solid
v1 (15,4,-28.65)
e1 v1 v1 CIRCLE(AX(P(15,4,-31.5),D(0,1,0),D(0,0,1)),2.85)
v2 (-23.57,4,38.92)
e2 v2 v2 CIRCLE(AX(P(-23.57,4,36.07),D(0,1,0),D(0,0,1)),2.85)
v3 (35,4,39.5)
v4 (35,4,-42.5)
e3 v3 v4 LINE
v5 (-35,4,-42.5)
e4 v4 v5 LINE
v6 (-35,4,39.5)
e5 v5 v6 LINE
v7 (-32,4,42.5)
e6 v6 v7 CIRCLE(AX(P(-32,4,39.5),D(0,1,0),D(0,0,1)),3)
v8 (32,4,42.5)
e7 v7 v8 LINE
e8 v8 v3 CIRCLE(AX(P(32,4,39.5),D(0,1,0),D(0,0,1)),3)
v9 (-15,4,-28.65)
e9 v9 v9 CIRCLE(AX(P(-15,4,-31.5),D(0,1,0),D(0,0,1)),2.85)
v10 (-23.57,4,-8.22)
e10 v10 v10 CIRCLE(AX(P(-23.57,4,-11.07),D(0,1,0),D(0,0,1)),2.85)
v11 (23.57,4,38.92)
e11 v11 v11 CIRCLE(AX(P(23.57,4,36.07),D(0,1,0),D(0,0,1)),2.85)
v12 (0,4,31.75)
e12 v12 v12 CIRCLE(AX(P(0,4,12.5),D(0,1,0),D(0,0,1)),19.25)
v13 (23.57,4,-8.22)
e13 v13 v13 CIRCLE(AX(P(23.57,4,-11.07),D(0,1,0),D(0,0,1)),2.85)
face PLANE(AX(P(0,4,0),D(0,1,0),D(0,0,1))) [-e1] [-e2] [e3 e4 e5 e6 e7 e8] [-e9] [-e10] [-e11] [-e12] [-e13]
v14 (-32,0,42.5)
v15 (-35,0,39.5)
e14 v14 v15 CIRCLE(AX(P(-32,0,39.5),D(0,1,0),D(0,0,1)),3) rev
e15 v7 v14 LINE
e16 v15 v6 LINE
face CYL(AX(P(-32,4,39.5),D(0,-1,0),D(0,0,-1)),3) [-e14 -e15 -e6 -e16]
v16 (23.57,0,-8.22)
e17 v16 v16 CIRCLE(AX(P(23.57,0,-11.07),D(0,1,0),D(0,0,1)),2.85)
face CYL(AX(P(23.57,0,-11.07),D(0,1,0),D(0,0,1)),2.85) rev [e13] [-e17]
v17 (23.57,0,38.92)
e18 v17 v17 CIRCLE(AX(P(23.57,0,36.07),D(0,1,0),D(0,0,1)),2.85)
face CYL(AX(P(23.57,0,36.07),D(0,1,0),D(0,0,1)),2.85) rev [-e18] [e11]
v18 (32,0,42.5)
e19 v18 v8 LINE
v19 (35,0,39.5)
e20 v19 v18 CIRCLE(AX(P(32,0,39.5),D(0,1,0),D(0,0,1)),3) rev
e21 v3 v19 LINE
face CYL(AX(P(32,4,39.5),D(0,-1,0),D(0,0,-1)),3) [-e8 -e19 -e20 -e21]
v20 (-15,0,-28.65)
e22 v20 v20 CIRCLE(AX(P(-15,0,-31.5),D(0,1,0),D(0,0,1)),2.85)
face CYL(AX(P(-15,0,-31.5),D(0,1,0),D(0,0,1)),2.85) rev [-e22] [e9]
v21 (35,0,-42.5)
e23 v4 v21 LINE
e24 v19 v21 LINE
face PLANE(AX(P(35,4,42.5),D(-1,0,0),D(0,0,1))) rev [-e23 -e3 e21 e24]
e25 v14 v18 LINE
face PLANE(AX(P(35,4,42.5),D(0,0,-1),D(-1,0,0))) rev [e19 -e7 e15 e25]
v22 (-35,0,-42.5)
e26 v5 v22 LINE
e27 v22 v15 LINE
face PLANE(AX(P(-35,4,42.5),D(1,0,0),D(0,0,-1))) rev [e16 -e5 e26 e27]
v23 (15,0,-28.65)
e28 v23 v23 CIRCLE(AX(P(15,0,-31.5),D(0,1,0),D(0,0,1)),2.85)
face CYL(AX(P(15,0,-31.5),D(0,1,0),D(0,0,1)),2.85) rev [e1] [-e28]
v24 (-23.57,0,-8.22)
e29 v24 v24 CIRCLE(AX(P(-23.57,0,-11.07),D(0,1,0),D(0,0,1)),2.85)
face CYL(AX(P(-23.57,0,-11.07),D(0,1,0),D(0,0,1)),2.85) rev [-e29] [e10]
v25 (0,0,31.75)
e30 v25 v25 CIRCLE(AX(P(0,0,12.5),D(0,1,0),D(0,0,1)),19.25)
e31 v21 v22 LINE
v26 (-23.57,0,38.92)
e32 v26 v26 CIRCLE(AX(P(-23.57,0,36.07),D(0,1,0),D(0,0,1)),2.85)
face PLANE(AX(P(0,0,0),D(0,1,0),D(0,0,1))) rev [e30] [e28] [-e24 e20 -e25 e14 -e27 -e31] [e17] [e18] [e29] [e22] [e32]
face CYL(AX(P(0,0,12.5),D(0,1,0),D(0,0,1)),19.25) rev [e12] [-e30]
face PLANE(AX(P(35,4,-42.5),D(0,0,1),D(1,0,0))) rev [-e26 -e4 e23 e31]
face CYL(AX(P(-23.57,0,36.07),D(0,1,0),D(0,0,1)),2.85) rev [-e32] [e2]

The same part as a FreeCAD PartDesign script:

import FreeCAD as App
import Part
import Sketcher

V = App.Vector


def edges_at(feature, points):
    """Names of the edges that pass closest to the given points."""
    edges = feature.Shape.Edges
    near = lambda p: min(range(len(edges)), key=lambda i: edges[i].distToShape(Part.Vertex(*p))[0])
    return sorted({f"Edge{near(p) + 1}" for p in points})


def add_polygon(sketch, points):
    """Adds a closed chain of lines whose ends are joined by coincident constraints."""
    first, n = sketch.GeometryCount, len(points)
    for a, b in zip(points, points[1:] + points[:1]):
        sketch.addGeometry(Part.LineSegment(App.Vector(*a, 0), App.Vector(*b, 0)), False)
    for i in range(n):
        sketch.addConstraint(Sketcher.Constraint("Coincident", first + i, 2, first + (i + 1) % n, 1))

doc = App.newDocument("Part")
body = doc.addObject("PartDesign::Body", "Body")

# Sketch on XZ plane
sketch1 = body.newObject("Sketcher::SketchObject", "Sketch")
sketch1.AttachmentSupport = (doc.getObject("XZ_Plane"), [""])
sketch1.MapMode = "FlatFace"
add_polygon(sketch1, [(-35, -42), (-35, 42), (35, 42), (35, -42)])  # lines 0-3
sketch1.addConstraint([
    Sketcher.Constraint("Vertical", 0),
    Sketcher.Constraint("Horizontal", 1),
    Sketcher.Constraint("Vertical", 2),
    Sketcher.Constraint("Horizontal", 3),
    Sketcher.Constraint("Symmetric", 0, 2, 2, 2, -1, 1),
    Sketcher.Constraint("DistanceX", 1, 1, 1, 2, 70.0),
    Sketcher.Constraint("DistanceY", 0, 1, 0, 2, 85.0),
])
pad1 = body.newObject("PartDesign::Pad", "Pad")
pad1.Profile = sketch1
pad1.Length = 4
pad1.Reversed = True

# Sketch on XZ plane
sketch2 = body.newObject("Sketcher::SketchObject", "Sketch001")
sketch2.AttachmentSupport = (doc.getObject("XZ_Plane"), [""])
sketch2.MapMode = "FlatFace"
sketch2.AttachmentOffset = App.Placement(V(0, 0, -4), App.Rotation())
sketch2.addGeometry([
    Part.Circle(V(-23.6, -11.1, 0), V(0, 0, 1), 2.9),  # 0
    Part.Circle(V(-23.6, 36.1, 0), V(0, 0, 1), 2.9),  # 1
    Part.Circle(V(23.6, 36.1, 0), V(0, 0, 1), 2.9),  # 2
    Part.Circle(V(23.6, -11.1, 0), V(0, 0, 1), 2.9),  # 3
    Part.Circle(V(0, 12.5, 0), V(0, 0, 1), 19.2),  # 4
    Part.Circle(V(15, -31.5, 0), V(0, 0, 1), 2.9),  # 5
    Part.Circle(V(-15, -31.5, 0), V(0, 0, 1), 2.9),  # 6
], False)
sketch2.addConstraint([
    Sketcher.Constraint("Equal", 0, 1),
    Sketcher.Constraint("Equal", 1, 2),
    Sketcher.Constraint("Equal", 2, 3),
    Sketcher.Constraint("Equal", 3, 5),
    Sketcher.Constraint("Equal", 5, 6),
    Sketcher.Constraint("Symmetric", 1, 3, 2, 3, -2),
    Sketcher.Constraint("Symmetric", 0, 3, 3, 3, -2),
    Sketcher.Constraint("Symmetric", 5, 3, 6, 3, -2),
    Sketcher.Constraint("PointOnObject", 4, 3, -2),
    Sketcher.Constraint("Vertical", 0, 3, 1, 3),
    Sketcher.Constraint("Diameter", 0, 5.7),
    Sketcher.Constraint("Diameter", 4, 38.5),
    Sketcher.Constraint("DistanceX", -1, 1, 5, 3, 15.0),
    Sketcher.Constraint("DistanceY", 5, 3, 4, 3, 44.0),
    Sketcher.Constraint("DistanceY", -1, 1, 4, 3, 12.5),
    Sketcher.Constraint("DistanceX", 0, 3, -1, 1, 23.57),
    Sketcher.Constraint("DistanceY", 0, 3, -1, 1, 11.07),
    Sketcher.Constraint("DistanceY", -1, 1, 1, 3, 36.07),
])
pocket1 = body.newObject("PartDesign::Pocket", "Pocket")
pocket1.Profile = sketch2
pocket1.Type = "ThroughAll"
pocket1.Reversed = True
doc.recompute()

fillet = body.newObject("PartDesign::Fillet", "Fillet")
fillet.Base = (pocket1, edges_at(pocket1, [(35, 2, 42.5), (-35, 2, 42.5)]))
fillet.Radius = 3

doc.recompute()
